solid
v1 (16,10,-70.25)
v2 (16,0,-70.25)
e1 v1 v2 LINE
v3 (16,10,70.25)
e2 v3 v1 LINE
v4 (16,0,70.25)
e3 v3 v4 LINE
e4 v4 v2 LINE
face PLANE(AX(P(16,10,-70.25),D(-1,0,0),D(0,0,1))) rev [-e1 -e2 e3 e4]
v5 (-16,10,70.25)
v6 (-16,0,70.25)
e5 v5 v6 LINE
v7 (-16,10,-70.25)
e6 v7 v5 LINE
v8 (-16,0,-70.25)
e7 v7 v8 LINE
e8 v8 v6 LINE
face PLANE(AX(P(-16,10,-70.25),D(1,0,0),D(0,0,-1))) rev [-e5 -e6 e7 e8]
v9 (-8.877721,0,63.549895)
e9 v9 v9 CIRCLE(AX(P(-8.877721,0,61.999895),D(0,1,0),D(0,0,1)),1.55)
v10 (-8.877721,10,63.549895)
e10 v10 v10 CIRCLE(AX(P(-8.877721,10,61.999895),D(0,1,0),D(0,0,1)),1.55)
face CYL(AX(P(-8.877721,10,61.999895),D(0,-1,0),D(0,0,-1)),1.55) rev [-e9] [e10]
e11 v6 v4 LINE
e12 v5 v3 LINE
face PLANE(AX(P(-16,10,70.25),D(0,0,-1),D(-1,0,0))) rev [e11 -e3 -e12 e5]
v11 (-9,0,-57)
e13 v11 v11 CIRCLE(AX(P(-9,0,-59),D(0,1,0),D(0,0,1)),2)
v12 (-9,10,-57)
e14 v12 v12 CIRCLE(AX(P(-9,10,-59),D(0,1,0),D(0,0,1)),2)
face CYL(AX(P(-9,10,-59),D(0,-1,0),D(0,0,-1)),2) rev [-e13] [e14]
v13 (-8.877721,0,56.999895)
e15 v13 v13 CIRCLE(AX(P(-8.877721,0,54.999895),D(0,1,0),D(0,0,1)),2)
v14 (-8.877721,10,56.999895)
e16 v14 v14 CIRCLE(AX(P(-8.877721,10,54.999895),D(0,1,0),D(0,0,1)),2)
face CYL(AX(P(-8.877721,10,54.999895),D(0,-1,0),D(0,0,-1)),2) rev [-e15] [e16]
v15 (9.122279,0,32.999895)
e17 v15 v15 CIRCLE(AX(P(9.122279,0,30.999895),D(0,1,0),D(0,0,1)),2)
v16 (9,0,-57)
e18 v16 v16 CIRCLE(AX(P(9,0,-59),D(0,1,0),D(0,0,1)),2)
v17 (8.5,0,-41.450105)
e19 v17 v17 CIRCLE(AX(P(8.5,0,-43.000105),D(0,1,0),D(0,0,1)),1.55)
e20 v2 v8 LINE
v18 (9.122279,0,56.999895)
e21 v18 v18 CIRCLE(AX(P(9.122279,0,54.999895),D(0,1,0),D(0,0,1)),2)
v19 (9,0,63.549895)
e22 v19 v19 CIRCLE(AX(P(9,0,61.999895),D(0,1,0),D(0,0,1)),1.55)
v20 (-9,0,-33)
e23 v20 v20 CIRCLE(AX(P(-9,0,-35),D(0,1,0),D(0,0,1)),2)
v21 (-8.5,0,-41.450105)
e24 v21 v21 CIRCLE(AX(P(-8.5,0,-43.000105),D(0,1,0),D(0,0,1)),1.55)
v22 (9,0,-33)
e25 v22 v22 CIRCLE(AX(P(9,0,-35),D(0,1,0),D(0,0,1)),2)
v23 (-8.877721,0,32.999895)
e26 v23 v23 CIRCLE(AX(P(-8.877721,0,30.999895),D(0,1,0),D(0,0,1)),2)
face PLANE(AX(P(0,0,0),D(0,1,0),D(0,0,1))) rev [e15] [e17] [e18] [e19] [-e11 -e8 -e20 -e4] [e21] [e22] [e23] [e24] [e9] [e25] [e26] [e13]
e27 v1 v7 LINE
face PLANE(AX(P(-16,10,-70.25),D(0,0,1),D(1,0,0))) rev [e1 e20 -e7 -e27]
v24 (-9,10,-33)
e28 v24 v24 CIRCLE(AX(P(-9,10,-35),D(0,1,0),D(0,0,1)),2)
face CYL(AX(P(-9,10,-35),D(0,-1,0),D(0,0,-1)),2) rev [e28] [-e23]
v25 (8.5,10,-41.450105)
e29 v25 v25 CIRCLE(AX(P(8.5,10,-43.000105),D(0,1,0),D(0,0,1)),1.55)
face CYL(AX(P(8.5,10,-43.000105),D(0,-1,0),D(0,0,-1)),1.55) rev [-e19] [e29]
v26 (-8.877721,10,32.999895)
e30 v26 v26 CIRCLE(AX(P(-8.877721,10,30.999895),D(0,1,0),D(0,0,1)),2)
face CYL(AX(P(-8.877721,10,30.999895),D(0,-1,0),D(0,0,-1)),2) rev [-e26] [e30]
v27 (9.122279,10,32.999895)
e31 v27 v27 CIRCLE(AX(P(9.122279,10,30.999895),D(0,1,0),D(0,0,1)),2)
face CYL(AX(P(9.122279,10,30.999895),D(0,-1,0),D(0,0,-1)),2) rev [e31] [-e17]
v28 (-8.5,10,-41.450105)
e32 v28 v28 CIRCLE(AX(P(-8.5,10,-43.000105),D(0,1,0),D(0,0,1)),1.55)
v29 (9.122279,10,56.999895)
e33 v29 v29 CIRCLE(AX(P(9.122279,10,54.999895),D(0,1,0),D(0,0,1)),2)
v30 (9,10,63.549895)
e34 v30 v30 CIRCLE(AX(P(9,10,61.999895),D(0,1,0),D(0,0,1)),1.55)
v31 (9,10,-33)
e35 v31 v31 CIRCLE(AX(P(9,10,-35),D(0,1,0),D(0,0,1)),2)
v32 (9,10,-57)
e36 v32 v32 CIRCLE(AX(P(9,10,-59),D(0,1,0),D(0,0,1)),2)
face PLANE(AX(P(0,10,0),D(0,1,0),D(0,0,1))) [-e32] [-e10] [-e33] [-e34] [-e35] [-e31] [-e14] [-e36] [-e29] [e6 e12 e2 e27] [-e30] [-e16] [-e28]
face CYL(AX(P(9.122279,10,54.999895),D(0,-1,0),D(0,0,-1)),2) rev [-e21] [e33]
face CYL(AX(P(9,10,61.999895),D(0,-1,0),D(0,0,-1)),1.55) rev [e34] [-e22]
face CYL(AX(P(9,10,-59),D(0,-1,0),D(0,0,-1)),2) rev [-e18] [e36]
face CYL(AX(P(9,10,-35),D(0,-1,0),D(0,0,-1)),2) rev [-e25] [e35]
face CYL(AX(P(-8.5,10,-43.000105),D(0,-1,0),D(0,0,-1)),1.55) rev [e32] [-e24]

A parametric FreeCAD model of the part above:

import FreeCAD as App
import Part
import Sketcher
from FreeCAD import Vector


def add_polygon(sketch, points):
    """Adds a closed chain of lines whose ends are joined by coincident constraints."""
    first, n = sketch.GeometryCount, len(points)
    for a, b in zip(points, points[1:] + points[:1]):
        sketch.addGeometry(Part.LineSegment(App.Vector(*a, 0), App.Vector(*b, 0)), False)
    for i in range(n):
        sketch.addConstraint(Sketcher.Constraint("Coincident", first + i, 2, first + (i + 1) % n, 1))

doc = App.newDocument("Part")
body = doc.addObject("PartDesign::Body", "Body")

sketch1 = body.newObject("Sketcher::SketchObject", "Sketch")
sketch1.AttachmentSupport = (doc.getObject("XZ_Plane"), [""])
sketch1.MapMode = "FlatFace"
add_polygon(sketch1, [(-16, -70.2), (-16, 70.2), (16, 70.2), (16, -70.2)])
sketch1.addGeometry(Part.Circle(Vector(-8.9, 62, 0), Vector(0, 0, 1), 1.6), False)
sketch1.addGeometry(Part.Circle(Vector(-8.9, 55, 0), Vector(0, 0, 1), 2), False)
sketch1.addGeometry(Part.Circle(Vector(-8.9, 31, 0), Vector(0, 0, 1), 2), False)
sketch1.addGeometry(Part.Circle(Vector(9, 62, 0), Vector(0, 0, 1), 1.6), False)
sketch1.addGeometry(Part.Circle(Vector(9.1, 55, 0), Vector(0, 0, 1), 2), False)
sketch1.addGeometry(Part.Circle(Vector(9.1, 31, 0), Vector(0, 0, 1), 2), False)
sketch1.addGeometry(Part.Circle(Vector(-9, -35, 0), Vector(0, 0, 1), 2), False)
sketch1.addGeometry(Part.Circle(Vector(-8.5, -43, 0), Vector(0, 0, 1), 1.6), False)
sketch1.addGeometry(Part.Circle(Vector(-9, -59, 0), Vector(0, 0, 1), 2), False)
sketch1.addGeometry(Part.Circle(Vector(9, -35, 0), Vector(0, 0, 1), 2), False)
sketch1.addGeometry(Part.Circle(Vector(8.5, -43, 0), Vector(0, 0, 1), 1.6), False)
sketch1.addGeometry(Part.Circle(Vector(9, -59, 0), Vector(0, 0, 1), 2), False)
sketch1.addConstraint([
    Sketcher.Constraint("Vertical", 0),
    Sketcher.Constraint("Horizontal", 1),
    Sketcher.Constraint("Vertical", 2),
    Sketcher.Constraint("Horizontal", 3),
    Sketcher.Constraint("Equal", 5, 6),
    Sketcher.Constraint("Equal", 4, 7),
    Sketcher.Constraint("Equal", 6, 8),
    Sketcher.Constraint("Equal", 8, 9),
    Sketcher.Constraint("Equal", 9, 10),
    Sketcher.Constraint("Equal", 7, 11),
    Sketcher.Constraint("Equal", 10, 12),
    Sketcher.Constraint("Equal", 12, 13),
    Sketcher.Constraint("Equal", 11, 14),
    Sketcher.Constraint("Equal", 13, 15),
    Sketcher.Constraint("Symmetric", 0, 2, 2, 2, -1, 1),
    Sketcher.Constraint("Symmetric", 10, 3, 13, 3, -2),
    Sketcher.Constraint("Symmetric", 11, 3, 14, 3, -2),
    Sketcher.Constraint("Symmetric", 12, 3, 15, 3, -2),
    Sketcher.Constraint("Horizontal", 4, 3, 7, 3),
    Sketcher.Constraint("Horizontal", 5, 3, 8, 3),
    Sketcher.Constraint("Horizontal", 6, 3, 9, 3),
    Sketcher.Constraint("Vertical", 4, 3, 5, 3),
    Sketcher.Constraint("Vertical", 5, 3, 6, 3),
    Sketcher.Constraint("Vertical", 8, 3, 9, 3),
    Sketcher.Constraint("Vertical", 10, 3, 12, 3),
    Sketcher.Constraint("Vertical", 7, 3, 13, 3),
    Sketcher.Constraint("Diameter", 5, 4.0),
    Sketcher.Constraint("Diameter", 4, 3.1),
    Sketcher.Constraint("DistanceX", 1, 1, 1, 2, 32.0),
    Sketcher.Constraint("DistanceY", 0, 1, 0, 2, 140.5),
    Sketcher.Constraint("DistanceX", -1, 1, 7, 3, 9.0),
    Sketcher.Constraint("DistanceY", 10, 3, -1, 1, 35.0),
    Sketcher.Constraint("DistanceY", 12, 3, -1, 1, 59.0),
    Sketcher.Constraint("DistanceY", 5, 3, 4, 3, 7.0),
    Sketcher.Constraint("DistanceY", 6, 3, 5, 3, 24.0),
    Sketcher.Constraint("DistanceX", 5, 3, 8, 3, 18.0),
    Sketcher.Constraint("DistanceY", 11, 3, 6, 3, 74.0),
    Sketcher.Constraint("DistanceX", 11, 3, 14, 3, 17.0),
    Sketcher.Constraint("DistanceX", 4, 3, -1, 1, 8.877721),
    Sketcher.Constraint("DistanceY", -1, 1, 4, 3, 61.999895),
])
pad1 = body.newObject("PartDesign::Pad", "Pad")
pad1.Profile = sketch1
pad1.Length = 10
pad1.Reversed = True

doc.recompute()
